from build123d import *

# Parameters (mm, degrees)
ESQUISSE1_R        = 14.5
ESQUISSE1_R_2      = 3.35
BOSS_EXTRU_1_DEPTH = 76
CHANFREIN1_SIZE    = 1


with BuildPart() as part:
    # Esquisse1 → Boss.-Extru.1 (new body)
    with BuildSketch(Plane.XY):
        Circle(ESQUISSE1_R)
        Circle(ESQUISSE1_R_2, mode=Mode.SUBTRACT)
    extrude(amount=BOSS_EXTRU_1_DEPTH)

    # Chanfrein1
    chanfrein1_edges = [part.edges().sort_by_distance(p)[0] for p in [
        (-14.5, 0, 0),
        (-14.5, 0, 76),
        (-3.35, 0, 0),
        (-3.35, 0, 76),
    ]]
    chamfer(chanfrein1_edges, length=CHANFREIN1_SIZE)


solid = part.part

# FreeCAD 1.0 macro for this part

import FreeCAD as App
import Part
import Sketcher
Q = App.Units.Quantity


def edges_at(feature, points):
    """Names of the edges that pass closest to the given points."""
    edges = feature.Shape.Edges
    near = lambda p: min(range(len(edges)), key=lambda i: edges[i].distToShape(Part.Vertex(*p))[0])
    return sorted({f"Edge{near(p) + 1}" for p in points})

doc = App.newDocument("Part")
body = doc.addObject("PartDesign::Body", "Body")

sketch1 = body.newObject("Sketcher::SketchObject", "Sketch")
sketch1.AttachmentSupport = (doc.getObject("XY_Plane"), [""])
sketch1.MapMode = "FlatFace"
sketch1.addGeometry([
    Part.Circle(App.Vector(0, 0, 0), App.Vector(0, 0, 1), 14.5),
    Part.Circle(App.Vector(0, 0, 0), App.Vector(0, 0, 1), 3.4),
], False)
sketch1.addConstraint([
    Sketcher.Constraint("Coincident", 0, 3, -1, 1),
    Sketcher.Constraint("Coincident", 1, 3, -1, 1),
    Sketcher.Constraint("Diameter", 0, Q("29 mm")),
    Sketcher.Constraint("Diameter", 1, Q("6.7 mm")),
])
pad1 = body.newObject("PartDesign::Pad", "Pad")
pad1.Profile = sketch1
pad1.Length = 76
doc.recompute()

chamfer = body.newObject("PartDesign::Chamfer", "Chamfer")
chamfer.Base = (pad1, edges_at(pad1, [
    (-14.5, 0, 0),
    (-14.5, 0, 76),
    (-3.35, 0, 0),
    (-3.35, 0, 76),
]))
chamfer.Size = 1

doc.recompute()
